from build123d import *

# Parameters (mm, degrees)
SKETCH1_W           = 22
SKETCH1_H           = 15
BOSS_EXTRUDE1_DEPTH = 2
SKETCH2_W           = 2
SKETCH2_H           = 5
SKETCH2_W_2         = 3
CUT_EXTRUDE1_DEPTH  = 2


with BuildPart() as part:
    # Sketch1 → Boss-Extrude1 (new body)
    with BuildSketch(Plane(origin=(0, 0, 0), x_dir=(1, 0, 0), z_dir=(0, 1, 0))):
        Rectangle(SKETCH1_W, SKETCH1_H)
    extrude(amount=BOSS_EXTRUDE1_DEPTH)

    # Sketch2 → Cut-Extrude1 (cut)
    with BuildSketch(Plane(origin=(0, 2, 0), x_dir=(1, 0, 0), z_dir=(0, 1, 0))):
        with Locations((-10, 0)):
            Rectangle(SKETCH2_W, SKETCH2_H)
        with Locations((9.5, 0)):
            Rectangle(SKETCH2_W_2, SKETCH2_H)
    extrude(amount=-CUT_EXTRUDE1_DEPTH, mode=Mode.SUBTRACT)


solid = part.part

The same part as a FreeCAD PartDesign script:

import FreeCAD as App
import Part
import Sketcher

V = App.Vector


def add_polygon(sketch, points):
    """Adds a closed chain of lines whose ends are joined by coincident constraints."""
    first, n = sketch.GeometryCount, len(points)
    for a, b in zip(points, points[1:] + points[:1]):
        sketch.addGeometry(Part.LineSegment(App.Vector(*a, 0), App.Vector(*b, 0)), False)
    for i in range(n):
        sketch.addConstraint(Sketcher.Constraint("Coincident", first + i, 2, first + (i + 1) % n, 1))

doc = App.newDocument("Part")
body = doc.addObject("PartDesign::Body", "Body")

# Sketch on XZ plane
sketch1 = body.newObject("Sketcher::SketchObject", "Sketch")
sketch1.AttachmentSupport = (doc.getObject("XZ_Plane"), [""])
sketch1.MapMode = "FlatFace"
add_polygon(sketch1, [(-11, -8), (-11, 8), (11, 8), (11, -8)])  # lines 0-3
sketch1.addConstraint(Sketcher.Constraint("Vertical", 0))
sketch1.addConstraint(Sketcher.Constraint("Horizontal", 1))
sketch1.addConstraint(Sketcher.Constraint("Vertical", 2))
sketch1.addConstraint(Sketcher.Constraint("Horizontal", 3))
sketch1.addConstraint(Sketcher.Constraint("Symmetric", 0, 2, 2, 2, -1, 1))
sketch1.addConstraint(Sketcher.Constraint("DistanceX", 1, 1, 1, 2, 22.0))
sketch1.addConstraint(Sketcher.Constraint("DistanceY", 0, 1, 0, 2, 15.0))
pad1 = body.newObject("PartDesign::Pad", "Pad")
pad1.Profile = sketch1
pad1.Length = 2
pad1.Reversed = True

# Sketch on XZ plane
sketch2 = body.newObject("Sketcher::SketchObject", "Sketch001")
sketch2.AttachmentSupport = (doc.getObject("XZ_Plane"), [""])
sketch2.MapMode = "FlatFace"
sketch2.AttachmentOffset = App.Placement(V(0, 0, -2), App.Rotation())
add_polygon(sketch2, [(-11, -2.5), (-11, 2.5), (-9, 2.5), (-9, -2.5)])  # lines 0-3
add_polygon(sketch2, [(8, -2.5), (8, 2.5), (11, 2.5), (11, -2.5)])  # lines 4-7
sketch2.addConstraint(Sketcher.Constraint("Vertical", 0))
sketch2.addConstraint(Sketcher.Constraint("Horizontal", 1))
sketch2.addConstraint(Sketcher.Constraint("Vertical", 2))
sketch2.addConstraint(Sketcher.Constraint("Horizontal", 3))
sketch2.addConstraint(Sketcher.Constraint("Vertical", 4))
sketch2.addConstraint(Sketcher.Constraint("Horizontal", 5))
sketch2.addConstraint(Sketcher.Constraint("Vertical", 6))
sketch2.addConstraint(Sketcher.Constraint("Horizontal", 7))
sketch2.addConstraint(Sketcher.Constraint("Symmetric", 3, 2, 5, 2, -1, 1))
sketch2.addConstraint(Sketcher.Constraint("Horizontal", 1, 2, 4, 2))
sketch2.addConstraint(Sketcher.Constraint("Horizontal", 3, 2, 6, 2))
sketch2.addConstraint(Sketcher.Constraint("DistanceX", 1, 1, 1, 2, 2.0))
sketch2.addConstraint(Sketcher.Constraint("DistanceX", 5, 1, 5, 2, 3.0))
sketch2.addConstraint(Sketcher.Constraint("DistanceY", 0, 1, 0, 2, 5.0))
sketch2.addConstraint(Sketcher.Constraint("DistanceX", 0, 2, -1, 1, 11.0))
pocket1 = body.newObject("PartDesign::Pocket", "Pocket")
pocket1.Profile = sketch2
pocket1.Length = 2
pocket1.Reversed = True

doc.recompute()
